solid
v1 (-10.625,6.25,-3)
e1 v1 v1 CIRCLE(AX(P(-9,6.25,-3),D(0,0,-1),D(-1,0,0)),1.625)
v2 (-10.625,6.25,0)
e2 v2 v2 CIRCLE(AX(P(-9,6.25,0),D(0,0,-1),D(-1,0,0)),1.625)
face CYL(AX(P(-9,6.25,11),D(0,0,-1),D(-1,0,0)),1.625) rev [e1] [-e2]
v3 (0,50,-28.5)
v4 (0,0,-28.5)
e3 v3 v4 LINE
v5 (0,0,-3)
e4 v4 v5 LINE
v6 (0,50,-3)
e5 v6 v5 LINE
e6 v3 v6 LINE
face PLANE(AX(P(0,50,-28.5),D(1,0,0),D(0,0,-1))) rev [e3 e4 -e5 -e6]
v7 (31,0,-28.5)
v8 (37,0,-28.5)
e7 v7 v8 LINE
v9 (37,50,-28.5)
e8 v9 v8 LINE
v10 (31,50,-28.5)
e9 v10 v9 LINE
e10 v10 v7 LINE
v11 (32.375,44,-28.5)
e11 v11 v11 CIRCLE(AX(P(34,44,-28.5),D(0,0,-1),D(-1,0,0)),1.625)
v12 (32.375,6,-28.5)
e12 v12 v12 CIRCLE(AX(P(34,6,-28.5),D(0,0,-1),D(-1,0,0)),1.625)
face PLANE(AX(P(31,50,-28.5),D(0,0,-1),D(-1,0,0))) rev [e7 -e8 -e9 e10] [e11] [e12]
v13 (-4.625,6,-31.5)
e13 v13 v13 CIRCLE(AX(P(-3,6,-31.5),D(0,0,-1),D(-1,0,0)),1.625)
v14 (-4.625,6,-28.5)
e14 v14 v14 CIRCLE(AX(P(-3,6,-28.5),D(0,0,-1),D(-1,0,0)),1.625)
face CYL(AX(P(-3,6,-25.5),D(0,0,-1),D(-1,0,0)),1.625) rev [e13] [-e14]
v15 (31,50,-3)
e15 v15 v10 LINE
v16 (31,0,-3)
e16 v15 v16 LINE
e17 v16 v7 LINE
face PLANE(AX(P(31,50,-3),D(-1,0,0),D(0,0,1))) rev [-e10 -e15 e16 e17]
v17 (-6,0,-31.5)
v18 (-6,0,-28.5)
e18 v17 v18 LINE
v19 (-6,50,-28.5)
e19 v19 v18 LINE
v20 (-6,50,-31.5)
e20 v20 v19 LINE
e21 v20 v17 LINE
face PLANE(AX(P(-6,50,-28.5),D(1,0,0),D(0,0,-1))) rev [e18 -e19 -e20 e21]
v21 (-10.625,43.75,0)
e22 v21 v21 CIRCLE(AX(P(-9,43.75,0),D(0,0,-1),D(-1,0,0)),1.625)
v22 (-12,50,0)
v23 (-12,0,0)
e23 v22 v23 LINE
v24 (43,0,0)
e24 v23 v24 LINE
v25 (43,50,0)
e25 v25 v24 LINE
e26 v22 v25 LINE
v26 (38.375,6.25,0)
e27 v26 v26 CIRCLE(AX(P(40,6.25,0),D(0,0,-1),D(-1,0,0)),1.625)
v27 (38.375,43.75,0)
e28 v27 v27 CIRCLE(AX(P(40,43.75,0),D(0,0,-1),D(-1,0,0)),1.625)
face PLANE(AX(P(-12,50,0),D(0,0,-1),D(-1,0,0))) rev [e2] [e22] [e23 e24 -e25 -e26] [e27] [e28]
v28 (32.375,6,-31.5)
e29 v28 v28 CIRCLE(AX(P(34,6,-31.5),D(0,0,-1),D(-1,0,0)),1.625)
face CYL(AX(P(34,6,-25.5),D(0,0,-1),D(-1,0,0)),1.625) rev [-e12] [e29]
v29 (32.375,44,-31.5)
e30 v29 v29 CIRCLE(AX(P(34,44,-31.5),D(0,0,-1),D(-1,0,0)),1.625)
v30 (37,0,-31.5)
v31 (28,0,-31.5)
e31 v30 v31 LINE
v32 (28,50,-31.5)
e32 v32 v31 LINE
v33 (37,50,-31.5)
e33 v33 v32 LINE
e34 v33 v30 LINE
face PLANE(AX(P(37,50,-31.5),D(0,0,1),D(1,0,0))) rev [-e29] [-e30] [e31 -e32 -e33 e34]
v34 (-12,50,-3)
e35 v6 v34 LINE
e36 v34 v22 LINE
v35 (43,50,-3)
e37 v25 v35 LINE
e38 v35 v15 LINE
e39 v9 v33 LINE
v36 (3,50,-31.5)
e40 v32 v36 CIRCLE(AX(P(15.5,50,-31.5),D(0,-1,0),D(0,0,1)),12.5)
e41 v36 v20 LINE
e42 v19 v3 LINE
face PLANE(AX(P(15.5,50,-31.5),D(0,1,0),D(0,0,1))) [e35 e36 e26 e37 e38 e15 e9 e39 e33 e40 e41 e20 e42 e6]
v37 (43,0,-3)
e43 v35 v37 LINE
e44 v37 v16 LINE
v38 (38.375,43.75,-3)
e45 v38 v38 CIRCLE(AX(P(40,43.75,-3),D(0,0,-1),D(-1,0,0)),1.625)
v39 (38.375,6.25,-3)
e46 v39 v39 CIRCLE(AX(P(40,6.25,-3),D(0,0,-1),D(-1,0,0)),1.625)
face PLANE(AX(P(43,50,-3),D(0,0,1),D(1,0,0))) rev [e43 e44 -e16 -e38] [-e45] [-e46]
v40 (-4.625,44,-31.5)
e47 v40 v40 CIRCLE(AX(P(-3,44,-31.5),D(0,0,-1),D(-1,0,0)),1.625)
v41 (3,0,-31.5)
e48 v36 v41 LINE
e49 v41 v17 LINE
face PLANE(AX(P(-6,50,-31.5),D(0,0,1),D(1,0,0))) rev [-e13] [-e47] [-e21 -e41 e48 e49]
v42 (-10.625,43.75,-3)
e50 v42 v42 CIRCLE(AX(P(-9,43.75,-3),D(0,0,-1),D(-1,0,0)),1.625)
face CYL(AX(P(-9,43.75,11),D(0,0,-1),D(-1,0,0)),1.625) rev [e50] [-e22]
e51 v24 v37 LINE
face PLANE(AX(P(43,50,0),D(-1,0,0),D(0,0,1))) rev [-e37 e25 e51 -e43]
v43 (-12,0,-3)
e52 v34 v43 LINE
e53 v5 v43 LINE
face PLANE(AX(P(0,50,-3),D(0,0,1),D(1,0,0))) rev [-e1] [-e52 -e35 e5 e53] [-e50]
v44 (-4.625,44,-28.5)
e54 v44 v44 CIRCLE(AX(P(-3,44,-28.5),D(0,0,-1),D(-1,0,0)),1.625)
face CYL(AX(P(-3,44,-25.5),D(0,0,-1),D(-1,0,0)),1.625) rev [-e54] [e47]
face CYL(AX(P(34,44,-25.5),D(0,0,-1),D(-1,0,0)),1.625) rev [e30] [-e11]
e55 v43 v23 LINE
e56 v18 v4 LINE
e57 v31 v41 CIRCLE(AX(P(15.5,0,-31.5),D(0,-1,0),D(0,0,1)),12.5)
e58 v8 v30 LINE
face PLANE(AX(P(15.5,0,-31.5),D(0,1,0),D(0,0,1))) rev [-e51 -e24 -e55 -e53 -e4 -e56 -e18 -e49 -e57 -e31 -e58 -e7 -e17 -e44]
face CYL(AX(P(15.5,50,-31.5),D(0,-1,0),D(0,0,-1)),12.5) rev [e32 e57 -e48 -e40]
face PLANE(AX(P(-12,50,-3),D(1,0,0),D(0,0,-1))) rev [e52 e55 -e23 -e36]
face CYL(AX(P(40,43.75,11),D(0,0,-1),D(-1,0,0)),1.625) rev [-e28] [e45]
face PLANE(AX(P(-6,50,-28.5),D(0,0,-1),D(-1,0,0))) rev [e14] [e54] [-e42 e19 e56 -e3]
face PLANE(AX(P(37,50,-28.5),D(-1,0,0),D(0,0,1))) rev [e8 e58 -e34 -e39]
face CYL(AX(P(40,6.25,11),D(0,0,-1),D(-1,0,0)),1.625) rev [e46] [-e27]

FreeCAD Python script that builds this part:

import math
import FreeCAD as App
import Part
import Sketcher

V = App.Vector
Q = App.Units.Quantity

doc = App.newDocument("Part")
params = doc.addObject("Spreadsheet::Sheet", "Params")
for row, (alias, value) in enumerate([
    ("sketch1_radius", "12.5 mm"),
    ("sketch1_width", "6 mm"),
    ("sketch1_width2", "12 mm"),
    ("sketch1_width3", "55 mm"),
    ("sketch1_height", "3 mm"),
    ("pad1_length", "50 mm"),
    ("sketch2_diameter", "3.25 mm"),
    ("pocket1_length", "6 mm"),
    ("sketch3_diameter", "3.25 mm"),
    ("pocket2_length", "14 mm"),
    ("sketch4_diameter", "3.25 mm"),
    ("pocket3_length", "14 mm"),
], start=1):
    params.set(f"A{row}", alias)
    params.set(f"B{row}", "=" + value)
    params.setAlias(f"B{row}", alias)

body = doc.addObject("PartDesign::Body", "Body")

sketch1 = body.newObject("Sketcher::SketchObject", "Sketch")
sketch1.AttachmentSupport = (doc.getObject("XZ_Plane"), [""])
sketch1.MapMode = "FlatFace"
sketch1.addGeometry([
    Part.LineSegment(V(-6, -31.5, 0), V(-6, -28.5, 0)),
    Part.LineSegment(V(-6, -28.5, 0), V(0, -28.5, 0)),
    Part.LineSegment(V(0, -28.5, 0), V(0, -3, 0)),
    Part.LineSegment(V(0, -3, 0), V(-12, -3, 0)),
    Part.LineSegment(V(-12, -3, 0), V(-12, 0, 0)),
    Part.LineSegment(V(-12, 0, 0), V(43, 0, 0)),
    Part.LineSegment(V(43, 0, 0), V(43, -3, 0)),
    Part.LineSegment(V(43, -3, 0), V(31, -3, 0)),
    Part.LineSegment(V(31, -3, 0), V(31, -28.5, 0)),
    Part.LineSegment(V(31, -28.5, 0), V(37, -28.5, 0)),
    Part.LineSegment(V(37, -28.5, 0), V(37, -31.5, 0)),
    Part.LineSegment(V(37, -31.5, 0), V(28, -31.5, 0)),
    Part.ArcOfCircle(Part.Circle(V(15.5, -31.5, 0), V(0, 0, 1), 12.5), math.radians(0), math.radians(180)),
    Part.LineSegment(V(3, -31.5, 0), V(-6, -31.5, 0)),
], False)
sketch1.addConstraint([
    Sketcher.Constraint("Coincident", 0, 2, 1, 1),
    Sketcher.Constraint("Coincident", 1, 2, 2, 1),
    Sketcher.Constraint("Coincident", 2, 2, 3, 1),
    Sketcher.Constraint("Coincident", 3, 2, 4, 1),
    Sketcher.Constraint("Coincident", 4, 2, 5, 1),
    Sketcher.Constraint("Coincident", 5, 2, 6, 1),
    Sketcher.Constraint("Coincident", 6, 2, 7, 1),
    Sketcher.Constraint("Coincident", 7, 2, 8, 1),
    Sketcher.Constraint("Coincident", 8, 2, 9, 1),
    Sketcher.Constraint("Coincident", 9, 2, 10, 1),
    Sketcher.Constraint("Coincident", 10, 2, 11, 1),
    Sketcher.Constraint("Coincident", 11, 2, 12, 1),
    Sketcher.Constraint("Coincident", 12, 2, 13, 1),
    Sketcher.Constraint("Coincident", 13, 2, 0, 1),
    Sketcher.Constraint("Vertical", 0),
    Sketcher.Constraint("Horizontal", 1),
    Sketcher.Constraint("Vertical", 2),
    Sketcher.Constraint("Horizontal", 3),
    Sketcher.Constraint("Vertical", 4),
    Sketcher.Constraint("Horizontal", 5),
    Sketcher.Constraint("Vertical", 6),
    Sketcher.Constraint("Horizontal", 7),
    Sketcher.Constraint("Vertical", 8),
    Sketcher.Constraint("Horizontal", 9),
    Sketcher.Constraint("Vertical", 10),
    Sketcher.Constraint("Horizontal", 11),
    Sketcher.Constraint("Horizontal", 13),
    Sketcher.Constraint("PointOnObject", 1, 2, -2),
    Sketcher.Constraint("PointOnObject", 4, 2, -1),
    Sketcher.Constraint("Horizontal", 3, 2, 6, 2),
    Sketcher.Constraint("Horizontal", 1, 2, 8, 2),
    Sketcher.Constraint("Horizontal", 12, 3, 10, 2),
    Sketcher.Constraint("Horizontal", 11, 2, 12, 2),
    Sketcher.Constraint("Equal", 3, 7),
    Sketcher.Constraint("Equal", 1, 9),
    Sketcher.Constraint("Equal", 11, 13),
    Sketcher.Constraint("Equal", 0, 4),
    Sketcher.Constraint("Radius", 12, Q("12.5 mm")),
    Sketcher.Constraint("DistanceX", 1, 1, 1, 2, Q("6 mm")),
    Sketcher.Constraint("DistanceX", 3, 2, 3, 1, Q("12 mm")),
    Sketcher.Constraint("DistanceX", 5, 1, 5, 2, Q("55 mm")),
    Sketcher.Constraint("DistanceY", 0, 1, 0, 2, Q("3 mm")),
    Sketcher.Constraint("DistanceY", 2, 1, 2, 2, Q("25.5 mm")),
])
sketch1.setExpression("Constraints[37]", "Params.sketch1_radius")
sketch1.setExpression("Constraints[38]", "Params.sketch1_width")
sketch1.setExpression("Constraints[39]", "Params.sketch1_width2")
sketch1.setExpression("Constraints[40]", "Params.sketch1_width3")
sketch1.setExpression("Constraints[41]", "Params.sketch1_height")
pad1 = body.newObject("PartDesign::Pad", "Pad")
pad1.Profile = sketch1
pad1.setExpression("Length", "Params.pad1_length")
pad1.Reversed = True

sketch2 = body.newObject("Sketcher::SketchObject", "Sketch001")
sketch2.AttachmentSupport = (doc.getObject("XY_Plane"), [""])
sketch2.MapMode = "FlatFace"
sketch2.AttachmentOffset = App.Placement(V(0, 0, -31.5), App.Rotation())
sketch2.addGeometry([
    Part.Circle(V(-3, 44, 0), V(0, 0, 1), 1.625),
    Part.Circle(V(-3, 6, 0), V(0, 0, 1), 1.625),
    Part.Circle(V(34, 44, 0), V(0, 0, 1), 1.625),
    Part.Circle(V(34, 6, 0), V(0, 0, 1), 1.625),
], False)
sketch2.addConstraint([
    Sketcher.Constraint("Equal", 0, 1),
    Sketcher.Constraint("Equal", 1, 2),
    Sketcher.Constraint("Equal", 2, 3),
    Sketcher.Constraint("Horizontal", 0, 3, 2, 3),
    Sketcher.Constraint("Horizontal", 1, 3, 3, 3),
    Sketcher.Constraint("Vertical", 0, 3, 1, 3),
    Sketcher.Constraint("Vertical", 2, 3, 3, 3),
    Sketcher.Constraint("Diameter", 0, Q("3.25 mm")),
    Sketcher.Constraint("DistanceX", 0, 3, -1, 1, Q("3 mm")),
    Sketcher.Constraint("DistanceY", -1, 1, 0, 3, Q("44 mm")),
    Sketcher.Constraint("DistanceY", -1, 1, 1, 3, Q("6 mm")),
    Sketcher.Constraint("DistanceX", -1, 1, 2, 3, Q("34 mm")),
])
sketch2.setExpression("Constraints[7]", "Params.sketch2_diameter")
pocket1 = body.newObject("PartDesign::Pocket", "Pocket")
pocket1.Profile = sketch2
pocket1.setExpression("Length", "Params.pocket1_length")
pocket1.Reversed = True

sketch3 = body.newObject("Sketcher::SketchObject", "Sketch002")
sketch3.AttachmentSupport = (doc.getObject("XY_Plane"), [""])
sketch3.MapMode = "FlatFace"
sketch3.AttachmentOffset = App.Placement(V(0, 0, -3), App.Rotation())
sketch3.addGeometry([
    Part.Circle(V(-9, 6.25, 0), V(0, 0, 1), 1.625),
    Part.Circle(V(-9, 43.75, 0), V(0, 0, 1), 1.625),
], False)
sketch3.addConstraint([
    Sketcher.Constraint("Equal", 0, 1),
    Sketcher.Constraint("Vertical", 0, 3, 1, 3),
    Sketcher.Constraint("Diameter", 0, Q("3.25 mm")),
    Sketcher.Constraint("DistanceX", 0, 3, -1, 1, Q("9 mm")),
    Sketcher.Constraint("DistanceY", 0, 3, 1, 3, Q("37.5 mm")),
    Sketcher.Constraint("DistanceY", -1, 1, 0, 3, Q("6.25 mm")),
])
sketch3.setExpression("Constraints[2]", "Params.sketch3_diameter")
pocket2 = body.newObject("PartDesign::Pocket", "Pocket001")
pocket2.Profile = sketch3
pocket2.setExpression("Length", "Params.pocket2_length")
pocket2.Reversed = True

sketch4 = body.newObject("Sketcher::SketchObject", "Sketch003")
sketch4.AttachmentSupport = (doc.getObject("XY_Plane"), [""])
sketch4.MapMode = "FlatFace"
sketch4.AttachmentOffset = App.Placement(V(0, 0, -3), App.Rotation())
sketch4.addGeometry([
    Part.Circle(V(40, 6.25, 0), V(0, 0, 1), 1.625),
    Part.Circle(V(40, 43.75, 0), V(0, 0, 1), 1.625),
], False)
sketch4.addConstraint([
    Sketcher.Constraint("Equal", 0, 1),
    Sketcher.Constraint("Vertical", 0, 3, 1, 3),
    Sketcher.Constraint("Diameter", 0, Q("3.25 mm")),
    Sketcher.Constraint("DistanceX", -1, 1, 0, 3, Q("40 mm")),
    Sketcher.Constraint("DistanceY", 0, 3, 1, 3, Q("37.5 mm")),
    Sketcher.Constraint("DistanceY", -1, 1, 0, 3, Q("6.25 mm")),
])
sketch4.setExpression("Constraints[2]", "Params.sketch4_diameter")
pocket3 = body.newObject("PartDesign::Pocket", "Pocket002")
pocket3.Profile = sketch4
pocket3.setExpression("Length", "Params.pocket3_length")
pocket3.Reversed = True

doc.recompute()
